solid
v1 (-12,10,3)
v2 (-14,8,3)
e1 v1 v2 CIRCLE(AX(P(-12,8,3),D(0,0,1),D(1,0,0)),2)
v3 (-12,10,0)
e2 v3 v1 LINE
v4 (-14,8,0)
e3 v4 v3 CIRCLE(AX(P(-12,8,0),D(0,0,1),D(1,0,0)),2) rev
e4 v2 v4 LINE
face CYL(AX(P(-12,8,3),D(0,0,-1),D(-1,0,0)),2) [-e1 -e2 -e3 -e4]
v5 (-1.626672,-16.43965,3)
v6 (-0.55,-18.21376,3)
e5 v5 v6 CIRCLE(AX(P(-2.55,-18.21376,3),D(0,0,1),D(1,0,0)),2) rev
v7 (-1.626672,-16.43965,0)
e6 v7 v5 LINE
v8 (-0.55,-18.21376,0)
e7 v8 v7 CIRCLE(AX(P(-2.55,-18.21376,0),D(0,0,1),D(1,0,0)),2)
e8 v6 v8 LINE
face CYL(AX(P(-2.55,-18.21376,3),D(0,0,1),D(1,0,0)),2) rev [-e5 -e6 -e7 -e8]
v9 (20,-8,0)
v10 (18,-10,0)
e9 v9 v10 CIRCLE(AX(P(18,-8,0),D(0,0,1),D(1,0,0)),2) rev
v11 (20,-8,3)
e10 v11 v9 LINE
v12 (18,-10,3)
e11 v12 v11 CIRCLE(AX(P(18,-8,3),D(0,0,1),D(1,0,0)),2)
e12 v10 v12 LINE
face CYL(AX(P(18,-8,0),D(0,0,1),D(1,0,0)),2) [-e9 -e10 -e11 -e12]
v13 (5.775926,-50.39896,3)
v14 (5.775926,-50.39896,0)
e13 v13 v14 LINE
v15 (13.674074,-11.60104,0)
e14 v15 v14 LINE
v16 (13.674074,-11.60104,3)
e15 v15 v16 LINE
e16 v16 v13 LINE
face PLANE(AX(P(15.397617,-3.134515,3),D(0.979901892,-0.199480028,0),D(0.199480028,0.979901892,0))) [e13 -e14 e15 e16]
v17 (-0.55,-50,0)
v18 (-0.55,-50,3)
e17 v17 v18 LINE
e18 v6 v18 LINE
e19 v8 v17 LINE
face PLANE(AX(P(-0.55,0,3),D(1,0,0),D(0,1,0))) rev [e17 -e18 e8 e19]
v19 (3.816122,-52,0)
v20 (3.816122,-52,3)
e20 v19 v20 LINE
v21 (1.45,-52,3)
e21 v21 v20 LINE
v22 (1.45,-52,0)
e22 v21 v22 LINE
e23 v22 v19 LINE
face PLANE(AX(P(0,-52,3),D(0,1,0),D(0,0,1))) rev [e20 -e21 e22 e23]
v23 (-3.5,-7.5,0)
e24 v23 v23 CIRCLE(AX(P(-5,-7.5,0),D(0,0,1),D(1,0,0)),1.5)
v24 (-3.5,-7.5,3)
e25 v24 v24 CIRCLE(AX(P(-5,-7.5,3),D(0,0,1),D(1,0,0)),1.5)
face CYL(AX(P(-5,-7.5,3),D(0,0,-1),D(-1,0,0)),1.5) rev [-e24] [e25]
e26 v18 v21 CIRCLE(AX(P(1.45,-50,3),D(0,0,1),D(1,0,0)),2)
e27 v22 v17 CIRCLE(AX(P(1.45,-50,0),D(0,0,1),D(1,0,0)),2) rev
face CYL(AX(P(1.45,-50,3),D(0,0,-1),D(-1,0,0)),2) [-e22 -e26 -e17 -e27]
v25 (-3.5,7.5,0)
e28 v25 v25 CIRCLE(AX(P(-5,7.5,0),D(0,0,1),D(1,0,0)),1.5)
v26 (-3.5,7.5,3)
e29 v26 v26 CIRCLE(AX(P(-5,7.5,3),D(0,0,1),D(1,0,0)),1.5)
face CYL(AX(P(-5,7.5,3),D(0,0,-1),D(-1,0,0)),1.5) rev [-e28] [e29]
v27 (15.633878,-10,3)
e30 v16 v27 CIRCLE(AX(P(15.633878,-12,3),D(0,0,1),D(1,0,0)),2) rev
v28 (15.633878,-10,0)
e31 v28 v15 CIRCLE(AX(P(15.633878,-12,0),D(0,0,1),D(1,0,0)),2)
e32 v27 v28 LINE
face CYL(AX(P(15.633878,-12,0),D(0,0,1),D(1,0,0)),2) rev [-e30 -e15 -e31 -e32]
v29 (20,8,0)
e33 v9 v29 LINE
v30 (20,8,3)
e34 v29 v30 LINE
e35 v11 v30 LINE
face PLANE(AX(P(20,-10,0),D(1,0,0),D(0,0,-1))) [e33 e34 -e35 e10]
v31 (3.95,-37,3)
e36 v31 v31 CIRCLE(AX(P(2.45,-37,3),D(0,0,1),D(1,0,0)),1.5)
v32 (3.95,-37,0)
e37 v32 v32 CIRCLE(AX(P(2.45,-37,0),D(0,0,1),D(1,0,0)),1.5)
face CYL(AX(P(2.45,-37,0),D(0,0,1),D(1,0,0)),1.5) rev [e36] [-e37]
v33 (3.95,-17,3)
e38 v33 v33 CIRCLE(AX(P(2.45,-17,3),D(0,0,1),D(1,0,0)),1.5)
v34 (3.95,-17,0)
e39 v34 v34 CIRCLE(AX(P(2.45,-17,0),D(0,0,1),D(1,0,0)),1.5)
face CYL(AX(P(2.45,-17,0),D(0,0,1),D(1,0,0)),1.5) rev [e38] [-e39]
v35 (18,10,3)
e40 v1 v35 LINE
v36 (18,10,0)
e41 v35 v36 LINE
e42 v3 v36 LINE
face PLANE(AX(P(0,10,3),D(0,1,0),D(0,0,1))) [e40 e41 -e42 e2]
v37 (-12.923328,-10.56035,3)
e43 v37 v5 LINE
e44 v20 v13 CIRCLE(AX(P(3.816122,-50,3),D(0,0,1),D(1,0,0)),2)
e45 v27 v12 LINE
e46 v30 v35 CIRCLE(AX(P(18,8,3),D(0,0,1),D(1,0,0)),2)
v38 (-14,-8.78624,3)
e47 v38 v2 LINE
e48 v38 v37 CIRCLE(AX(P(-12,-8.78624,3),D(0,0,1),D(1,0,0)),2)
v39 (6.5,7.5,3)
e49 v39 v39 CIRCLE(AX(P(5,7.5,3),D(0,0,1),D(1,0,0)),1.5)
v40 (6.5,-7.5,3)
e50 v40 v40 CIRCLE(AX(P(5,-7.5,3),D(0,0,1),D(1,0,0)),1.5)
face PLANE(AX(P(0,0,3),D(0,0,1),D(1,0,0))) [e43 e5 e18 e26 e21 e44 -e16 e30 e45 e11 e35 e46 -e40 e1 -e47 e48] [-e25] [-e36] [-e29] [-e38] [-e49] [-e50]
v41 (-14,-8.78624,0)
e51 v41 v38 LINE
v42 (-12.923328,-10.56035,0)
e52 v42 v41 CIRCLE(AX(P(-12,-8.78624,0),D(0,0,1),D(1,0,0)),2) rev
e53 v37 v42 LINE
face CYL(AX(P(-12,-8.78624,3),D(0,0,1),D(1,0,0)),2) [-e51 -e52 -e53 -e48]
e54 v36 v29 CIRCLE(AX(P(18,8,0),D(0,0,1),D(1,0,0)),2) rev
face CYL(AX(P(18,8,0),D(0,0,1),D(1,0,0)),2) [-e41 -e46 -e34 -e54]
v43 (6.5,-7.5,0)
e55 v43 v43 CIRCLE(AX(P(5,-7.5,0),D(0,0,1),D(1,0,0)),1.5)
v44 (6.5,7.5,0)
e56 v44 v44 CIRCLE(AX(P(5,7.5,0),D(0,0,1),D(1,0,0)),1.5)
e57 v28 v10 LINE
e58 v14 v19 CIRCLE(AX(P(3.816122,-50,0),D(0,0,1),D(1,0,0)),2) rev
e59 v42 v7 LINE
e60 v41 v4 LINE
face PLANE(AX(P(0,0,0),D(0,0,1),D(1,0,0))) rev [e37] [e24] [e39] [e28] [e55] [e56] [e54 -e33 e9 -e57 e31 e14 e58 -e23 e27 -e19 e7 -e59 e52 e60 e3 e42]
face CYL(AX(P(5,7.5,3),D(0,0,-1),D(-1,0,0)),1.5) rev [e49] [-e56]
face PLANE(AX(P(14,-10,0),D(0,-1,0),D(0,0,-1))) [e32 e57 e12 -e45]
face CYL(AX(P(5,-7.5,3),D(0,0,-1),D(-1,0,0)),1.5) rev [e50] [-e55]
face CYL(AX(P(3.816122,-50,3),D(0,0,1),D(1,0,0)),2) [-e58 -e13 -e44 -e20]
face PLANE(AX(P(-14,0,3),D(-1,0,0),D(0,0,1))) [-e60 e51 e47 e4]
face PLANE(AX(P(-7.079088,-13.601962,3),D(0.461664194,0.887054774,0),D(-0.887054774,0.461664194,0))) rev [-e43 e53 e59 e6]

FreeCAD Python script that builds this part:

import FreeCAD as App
import Part
import Sketcher
from FreeCAD import Vector


def edges_at(feature, points):
    """Names of the edges that pass closest to the given points."""
    edges = feature.Shape.Edges
    near = lambda p: min(range(len(edges)), key=lambda i: edges[i].distToShape(Part.Vertex(*p))[0])
    return sorted({f"Edge{near(p) + 1}" for p in points})

doc = App.newDocument("Part")
body = doc.addObject("PartDesign::Body", "Body")

# Sketch on XY plane
sketch1 = doc.addObject("Sketcher::SketchObject", "Sketch")
body.addObject(sketch1)
sketch1.AttachmentSupport = (doc.XY_Plane, [""])
sketch1.MapMode = "FlatFace"
sketch1.addGeometry(Part.LineSegment(Vector(-14, -10, 0), Vector(-0.55, -17, 0)), False)
sketch1.addGeometry(Part.LineSegment(Vector(-0.55, -17, 0), Vector(-0.55, -52, 0)), False)
sketch1.addGeometry(Part.LineSegment(Vector(-0.55, -52, 0), Vector(5.45, -52, 0)), False)
sketch1.addGeometry(Part.LineSegment(Vector(5.45, -52, 0), Vector(14, -10, 0)), False)
sketch1.addGeometry(Part.LineSegment(Vector(14, -10, 0), Vector(14, 10, 0)), False)
sketch1.addGeometry(Part.LineSegment(Vector(14, 10, 0), Vector(-14, 10, 0)), False)
sketch1.addGeometry(Part.LineSegment(Vector(-14, 10, 0), Vector(-14, -10, 0)), False)
sketch1.addGeometry(Part.Circle(Vector(-5, -7.5, 0), Vector(0, 0, 1), 1.5), False)
sketch1.addGeometry(Part.Circle(Vector(5, -7.5, 0), Vector(0, 0, 1), 1.5), False)
sketch1.addGeometry(Part.Circle(Vector(-5, 7.5, 0), Vector(0, 0, 1), 1.5), False)
sketch1.addGeometry(Part.Circle(Vector(5, 7.5, 0), Vector(0, 0, 1), 1.5), False)
sketch1.addConstraint(Sketcher.Constraint("Coincident", 0, 2, 1, 1))
sketch1.addConstraint(Sketcher.Constraint("Coincident", 1, 2, 2, 1))
sketch1.addConstraint(Sketcher.Constraint("Coincident", 2, 2, 3, 1))
sketch1.addConstraint(Sketcher.Constraint("Coincident", 3, 2, 4, 1))
sketch1.addConstraint(Sketcher.Constraint("Coincident", 4, 2, 5, 1))
sketch1.addConstraint(Sketcher.Constraint("Coincident", 5, 2, 6, 1))
sketch1.addConstraint(Sketcher.Constraint("Coincident", 6, 2, 0, 1))
sketch1.addConstraint(Sketcher.Constraint("Vertical", 1))
sketch1.addConstraint(Sketcher.Constraint("Horizontal", 2))
sketch1.addConstraint(Sketcher.Constraint("Vertical", 4))
sketch1.addConstraint(Sketcher.Constraint("Horizontal", 5))
sketch1.addConstraint(Sketcher.Constraint("Vertical", 6))
sketch1.addConstraint(Sketcher.Constraint("Equal", 7, 8))
sketch1.addConstraint(Sketcher.Constraint("Equal", 8, 9))
sketch1.addConstraint(Sketcher.Constraint("Equal", 9, 10))
sketch1.addConstraint(Sketcher.Constraint("Symmetric", 8, 3, 9, 3, -1, 1))
sketch1.addConstraint(Sketcher.Constraint("Symmetric", 7, 3, 10, 3, -1, 1))
sketch1.addConstraint(Sketcher.Constraint("Symmetric", 3, 2, 5, 2, -1, 1))
sketch1.addConstraint(Sketcher.Constraint("Symmetric", 7, 3, 8, 3, -2))
sketch1.addConstraint(Sketcher.Constraint("Horizontal", 3, 2, 6, 2))
sketch1.addConstraint(Sketcher.Constraint("Diameter", 7, 3.0))
sketch1.addConstraint(Sketcher.Constraint("DistanceX", 2, 1, 2, 2, 6.0))
sketch1.addConstraint(Sketcher.Constraint("DistanceX", 5, 2, 5, 1, 28.0))
sketch1.addConstraint(Sketcher.Constraint("DistanceY", 1, 2, 1, 1, 35.0))
sketch1.addConstraint(Sketcher.Constraint("DistanceY", 4, 1, 4, 2, 20.0))
sketch1.addConstraint(Sketcher.Constraint("DistanceX", 7, 3, -1, 1, 5.0))
sketch1.addConstraint(Sketcher.Constraint("DistanceY", 0, 2, -1, 1, 17.0))
sketch1.addConstraint(Sketcher.Constraint("DistanceY", 7, 3, 9, 3, 15.0))
sketch1.addConstraint(Sketcher.Constraint("DistanceX", 0, 2, -1, 1, 0.55))
pad1 = doc.addObject("PartDesign::Pad", "Pad")
body.addObject(pad1)
pad1.Profile = sketch1
pad1.Length = 3

# Sketch on XY plane
sketch2 = doc.addObject("Sketcher::SketchObject", "Sketch001")
body.addObject(sketch2)
sketch2.AttachmentSupport = (doc.XY_Plane, [""])
sketch2.MapMode = "FlatFace"
sketch2.AttachmentOffset = App.Placement(Vector(0, 0, 3), App.Rotation())
sketch2.addGeometry(Part.Circle(Vector(2.45, -37, 0), Vector(0, 0, 1), 1.5), False)
sketch2.addGeometry(Part.Circle(Vector(2.45, -17, 0), Vector(0, 0, 1), 1.5), False)
sketch2.addConstraint(Sketcher.Constraint("Equal", 0, 1))
sketch2.addConstraint(Sketcher.Constraint("Vertical", 0, 3, 1, 3))
sketch2.addConstraint(Sketcher.Constraint("Diameter", 0, 3.0))
sketch2.addConstraint(Sketcher.Constraint("DistanceY", 0, 3, -1, 1, 37.0))
sketch2.addConstraint(Sketcher.Constraint("DistanceY", 1, 3, -1, 1, 17.0))
sketch2.addConstraint(Sketcher.Constraint("DistanceX", -1, 1, 0, 3, 2.45))
pocket1 = doc.addObject("PartDesign::Pocket", "Pocket")
body.addObject(pocket1)
pocket1.Profile = sketch2
pocket1.Length = 3

# Sketch on XY plane
sketch3 = doc.addObject("Sketcher::SketchObject", "Sketch002")
body.addObject(sketch3)
sketch3.AttachmentSupport = (doc.XY_Plane, [""])
sketch3.MapMode = "FlatFace"
sketch3.AttachmentOffset = App.Placement(Vector(0, 0, 3), App.Rotation())
sketch3.addGeometry(Part.LineSegment(Vector(14, 10, 0), Vector(14, -10, 0)), False)
sketch3.addGeometry(Part.LineSegment(Vector(14, -10, 0), Vector(20, -10, 0)), False)
sketch3.addGeometry(Part.LineSegment(Vector(20, -10, 0), Vector(20, 10, 0)), False)
sketch3.addGeometry(Part.LineSegment(Vector(20, 10, 0), Vector(14, 10, 0)), False)
sketch3.addConstraint(Sketcher.Constraint("Coincident", 0, 2, 1, 1))
sketch3.addConstraint(Sketcher.Constraint("Coincident", 1, 2, 2, 1))
sketch3.addConstraint(Sketcher.Constraint("Coincident", 2, 2, 3, 1))
sketch3.addConstraint(Sketcher.Constraint("Coincident", 3, 2, 0, 1))
sketch3.addConstraint(Sketcher.Constraint("Vertical", 0))
sketch3.addConstraint(Sketcher.Constraint("Horizontal", 1))
sketch3.addConstraint(Sketcher.Constraint("Vertical", 2))
sketch3.addConstraint(Sketcher.Constraint("Horizontal", 3))
sketch3.addConstraint(Sketcher.Constraint("DistanceX", 1, 1, 1, 2, 6.0))
sketch3.addConstraint(Sketcher.Constraint("DistanceY", 0, 2, 0, 1, 20.0))
sketch3.addConstraint(Sketcher.Constraint("DistanceX", -1, 1, 0, 2, 14.0))
sketch3.addConstraint(Sketcher.Constraint("DistanceY", 0, 2, -1, 1, 10.0))
pad2 = doc.addObject("PartDesign::Pad", "Pad001")
body.addObject(pad2)
pad2.Profile = sketch3
pad2.Length = 3
pad2.Reversed = True
doc.recompute()

fillet = doc.addObject("PartDesign::Fillet", "Fillet")
body.addObject(fillet)
fillet.Base = (pad2, edges_at(pad2, [
    (-0.55, -52, 1.5),
    (-0.55, -17, 1.5),
    (-14, -10, 1.5),
    (-14, 10, 1.5),
    (14, -10, 1.5),
    (5.45, -52, 1.5),
    (20, 10, 1.5),
    (20, -10, 1.5),
]))
fillet.Radius = 2

doc.recompute()
